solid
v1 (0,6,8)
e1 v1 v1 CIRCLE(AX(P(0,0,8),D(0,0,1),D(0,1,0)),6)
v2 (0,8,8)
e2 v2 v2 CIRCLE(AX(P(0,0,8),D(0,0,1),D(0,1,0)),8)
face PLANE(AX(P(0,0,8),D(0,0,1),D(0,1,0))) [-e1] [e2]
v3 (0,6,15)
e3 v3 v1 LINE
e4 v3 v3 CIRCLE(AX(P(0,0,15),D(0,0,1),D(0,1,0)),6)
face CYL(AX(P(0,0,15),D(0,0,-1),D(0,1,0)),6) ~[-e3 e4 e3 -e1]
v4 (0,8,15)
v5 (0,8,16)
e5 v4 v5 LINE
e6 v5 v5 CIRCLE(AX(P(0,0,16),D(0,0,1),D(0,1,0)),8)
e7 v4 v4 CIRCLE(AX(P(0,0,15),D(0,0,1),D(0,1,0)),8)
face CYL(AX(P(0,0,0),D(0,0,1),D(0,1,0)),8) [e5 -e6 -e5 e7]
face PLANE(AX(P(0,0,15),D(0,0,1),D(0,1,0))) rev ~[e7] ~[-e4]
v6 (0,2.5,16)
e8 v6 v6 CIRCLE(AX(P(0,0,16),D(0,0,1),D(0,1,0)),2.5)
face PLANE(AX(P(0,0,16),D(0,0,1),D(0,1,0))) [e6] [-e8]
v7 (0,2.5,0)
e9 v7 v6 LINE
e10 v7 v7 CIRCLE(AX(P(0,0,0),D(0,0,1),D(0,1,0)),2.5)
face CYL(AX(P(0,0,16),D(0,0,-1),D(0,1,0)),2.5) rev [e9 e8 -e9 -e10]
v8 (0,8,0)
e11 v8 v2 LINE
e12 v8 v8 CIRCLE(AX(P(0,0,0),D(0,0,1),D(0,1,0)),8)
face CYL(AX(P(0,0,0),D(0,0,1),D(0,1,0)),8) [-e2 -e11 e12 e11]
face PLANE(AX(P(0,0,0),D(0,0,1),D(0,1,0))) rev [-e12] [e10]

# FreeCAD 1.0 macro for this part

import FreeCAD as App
import Part
import Sketcher

V = App.Vector
Q = App.Units.Quantity

doc = App.newDocument("Part")
body = doc.addObject("PartDesign::Body", "Body")

# Sketch on YZ plane
sketch1 = body.newObject("Sketcher::SketchObject", "Sketch")
sketch1.AttachmentSupport = (doc.getObject("YZ_Plane"), [""])
sketch1.MapMode = "FlatFace"
sketch1.addGeometry(Part.LineSegment(V(2.5, 0, 0), V(8, 0, 0)), False)
sketch1.addGeometry(Part.LineSegment(V(8, 0, 0), V(8, 8, 0)), False)
sketch1.addGeometry(Part.LineSegment(V(8, 8, 0), V(6, 8, 0)), False)
sketch1.addGeometry(Part.LineSegment(V(6, 8, 0), V(6, 15, 0)), False)
sketch1.addGeometry(Part.LineSegment(V(6, 15, 0), V(8, 15, 0)), False)
sketch1.addGeometry(Part.LineSegment(V(8, 15, 0), V(8, 16, 0)), False)
sketch1.addGeometry(Part.LineSegment(V(8, 16, 0), V(2.5, 16, 0)), False)
sketch1.addGeometry(Part.LineSegment(V(2.5, 16, 0), V(2.5, 0, 0)), False)
sketch1.addConstraint(Sketcher.Constraint("Coincident", 0, 2, 1, 1))
sketch1.addConstraint(Sketcher.Constraint("Coincident", 1, 2, 2, 1))
sketch1.addConstraint(Sketcher.Constraint("Coincident", 2, 2, 3, 1))
sketch1.addConstraint(Sketcher.Constraint("Coincident", 3, 2, 4, 1))
sketch1.addConstraint(Sketcher.Constraint("Coincident", 4, 2, 5, 1))
sketch1.addConstraint(Sketcher.Constraint("Coincident", 5, 2, 6, 1))
sketch1.addConstraint(Sketcher.Constraint("Coincident", 6, 2, 7, 1))
sketch1.addConstraint(Sketcher.Constraint("Coincident", 7, 2, 0, 1))
sketch1.addConstraint(Sketcher.Constraint("Horizontal", 0))
sketch1.addConstraint(Sketcher.Constraint("Vertical", 1))
sketch1.addConstraint(Sketcher.Constraint("Horizontal", 2))
sketch1.addConstraint(Sketcher.Constraint("Vertical", 3))
sketch1.addConstraint(Sketcher.Constraint("Horizontal", 4))
sketch1.addConstraint(Sketcher.Constraint("Vertical", 5))
sketch1.addConstraint(Sketcher.Constraint("Horizontal", 6))
sketch1.addConstraint(Sketcher.Constraint("Vertical", 7))
sketch1.addConstraint(Sketcher.Constraint("PointOnObject", 0, 2, -1))
sketch1.addConstraint(Sketcher.Constraint("Vertical", 1, 2, 4, 2))
sketch1.addConstraint(Sketcher.Constraint("DistanceY", 1, 1, 1, 2, Q("8 mm")))
sketch1.addConstraint(Sketcher.Constraint("DistanceY", 3, 1, 3, 2, Q("7 mm")))
sketch1.addConstraint(Sketcher.Constraint("DistanceY", 5, 1, 5, 2, Q("1 mm")))
sketch1.addConstraint(Sketcher.Constraint("DistanceX", -1, 1, 0, 2, Q("8 mm")))
sketch1.addConstraint(Sketcher.Constraint("DistanceX", -1, 1, 2, 2, Q("6 mm")))
sketch1.addConstraint(Sketcher.Constraint("DistanceX", -1, 1, 6, 2, Q("2.5 mm")))
revolution = body.newObject("PartDesign::Revolution", "Revolution")
revolution.Profile = sketch1
revolution.ReferenceAxis = (sketch1, ["V_Axis"])
revolution.Angle = 360

doc.recompute()
